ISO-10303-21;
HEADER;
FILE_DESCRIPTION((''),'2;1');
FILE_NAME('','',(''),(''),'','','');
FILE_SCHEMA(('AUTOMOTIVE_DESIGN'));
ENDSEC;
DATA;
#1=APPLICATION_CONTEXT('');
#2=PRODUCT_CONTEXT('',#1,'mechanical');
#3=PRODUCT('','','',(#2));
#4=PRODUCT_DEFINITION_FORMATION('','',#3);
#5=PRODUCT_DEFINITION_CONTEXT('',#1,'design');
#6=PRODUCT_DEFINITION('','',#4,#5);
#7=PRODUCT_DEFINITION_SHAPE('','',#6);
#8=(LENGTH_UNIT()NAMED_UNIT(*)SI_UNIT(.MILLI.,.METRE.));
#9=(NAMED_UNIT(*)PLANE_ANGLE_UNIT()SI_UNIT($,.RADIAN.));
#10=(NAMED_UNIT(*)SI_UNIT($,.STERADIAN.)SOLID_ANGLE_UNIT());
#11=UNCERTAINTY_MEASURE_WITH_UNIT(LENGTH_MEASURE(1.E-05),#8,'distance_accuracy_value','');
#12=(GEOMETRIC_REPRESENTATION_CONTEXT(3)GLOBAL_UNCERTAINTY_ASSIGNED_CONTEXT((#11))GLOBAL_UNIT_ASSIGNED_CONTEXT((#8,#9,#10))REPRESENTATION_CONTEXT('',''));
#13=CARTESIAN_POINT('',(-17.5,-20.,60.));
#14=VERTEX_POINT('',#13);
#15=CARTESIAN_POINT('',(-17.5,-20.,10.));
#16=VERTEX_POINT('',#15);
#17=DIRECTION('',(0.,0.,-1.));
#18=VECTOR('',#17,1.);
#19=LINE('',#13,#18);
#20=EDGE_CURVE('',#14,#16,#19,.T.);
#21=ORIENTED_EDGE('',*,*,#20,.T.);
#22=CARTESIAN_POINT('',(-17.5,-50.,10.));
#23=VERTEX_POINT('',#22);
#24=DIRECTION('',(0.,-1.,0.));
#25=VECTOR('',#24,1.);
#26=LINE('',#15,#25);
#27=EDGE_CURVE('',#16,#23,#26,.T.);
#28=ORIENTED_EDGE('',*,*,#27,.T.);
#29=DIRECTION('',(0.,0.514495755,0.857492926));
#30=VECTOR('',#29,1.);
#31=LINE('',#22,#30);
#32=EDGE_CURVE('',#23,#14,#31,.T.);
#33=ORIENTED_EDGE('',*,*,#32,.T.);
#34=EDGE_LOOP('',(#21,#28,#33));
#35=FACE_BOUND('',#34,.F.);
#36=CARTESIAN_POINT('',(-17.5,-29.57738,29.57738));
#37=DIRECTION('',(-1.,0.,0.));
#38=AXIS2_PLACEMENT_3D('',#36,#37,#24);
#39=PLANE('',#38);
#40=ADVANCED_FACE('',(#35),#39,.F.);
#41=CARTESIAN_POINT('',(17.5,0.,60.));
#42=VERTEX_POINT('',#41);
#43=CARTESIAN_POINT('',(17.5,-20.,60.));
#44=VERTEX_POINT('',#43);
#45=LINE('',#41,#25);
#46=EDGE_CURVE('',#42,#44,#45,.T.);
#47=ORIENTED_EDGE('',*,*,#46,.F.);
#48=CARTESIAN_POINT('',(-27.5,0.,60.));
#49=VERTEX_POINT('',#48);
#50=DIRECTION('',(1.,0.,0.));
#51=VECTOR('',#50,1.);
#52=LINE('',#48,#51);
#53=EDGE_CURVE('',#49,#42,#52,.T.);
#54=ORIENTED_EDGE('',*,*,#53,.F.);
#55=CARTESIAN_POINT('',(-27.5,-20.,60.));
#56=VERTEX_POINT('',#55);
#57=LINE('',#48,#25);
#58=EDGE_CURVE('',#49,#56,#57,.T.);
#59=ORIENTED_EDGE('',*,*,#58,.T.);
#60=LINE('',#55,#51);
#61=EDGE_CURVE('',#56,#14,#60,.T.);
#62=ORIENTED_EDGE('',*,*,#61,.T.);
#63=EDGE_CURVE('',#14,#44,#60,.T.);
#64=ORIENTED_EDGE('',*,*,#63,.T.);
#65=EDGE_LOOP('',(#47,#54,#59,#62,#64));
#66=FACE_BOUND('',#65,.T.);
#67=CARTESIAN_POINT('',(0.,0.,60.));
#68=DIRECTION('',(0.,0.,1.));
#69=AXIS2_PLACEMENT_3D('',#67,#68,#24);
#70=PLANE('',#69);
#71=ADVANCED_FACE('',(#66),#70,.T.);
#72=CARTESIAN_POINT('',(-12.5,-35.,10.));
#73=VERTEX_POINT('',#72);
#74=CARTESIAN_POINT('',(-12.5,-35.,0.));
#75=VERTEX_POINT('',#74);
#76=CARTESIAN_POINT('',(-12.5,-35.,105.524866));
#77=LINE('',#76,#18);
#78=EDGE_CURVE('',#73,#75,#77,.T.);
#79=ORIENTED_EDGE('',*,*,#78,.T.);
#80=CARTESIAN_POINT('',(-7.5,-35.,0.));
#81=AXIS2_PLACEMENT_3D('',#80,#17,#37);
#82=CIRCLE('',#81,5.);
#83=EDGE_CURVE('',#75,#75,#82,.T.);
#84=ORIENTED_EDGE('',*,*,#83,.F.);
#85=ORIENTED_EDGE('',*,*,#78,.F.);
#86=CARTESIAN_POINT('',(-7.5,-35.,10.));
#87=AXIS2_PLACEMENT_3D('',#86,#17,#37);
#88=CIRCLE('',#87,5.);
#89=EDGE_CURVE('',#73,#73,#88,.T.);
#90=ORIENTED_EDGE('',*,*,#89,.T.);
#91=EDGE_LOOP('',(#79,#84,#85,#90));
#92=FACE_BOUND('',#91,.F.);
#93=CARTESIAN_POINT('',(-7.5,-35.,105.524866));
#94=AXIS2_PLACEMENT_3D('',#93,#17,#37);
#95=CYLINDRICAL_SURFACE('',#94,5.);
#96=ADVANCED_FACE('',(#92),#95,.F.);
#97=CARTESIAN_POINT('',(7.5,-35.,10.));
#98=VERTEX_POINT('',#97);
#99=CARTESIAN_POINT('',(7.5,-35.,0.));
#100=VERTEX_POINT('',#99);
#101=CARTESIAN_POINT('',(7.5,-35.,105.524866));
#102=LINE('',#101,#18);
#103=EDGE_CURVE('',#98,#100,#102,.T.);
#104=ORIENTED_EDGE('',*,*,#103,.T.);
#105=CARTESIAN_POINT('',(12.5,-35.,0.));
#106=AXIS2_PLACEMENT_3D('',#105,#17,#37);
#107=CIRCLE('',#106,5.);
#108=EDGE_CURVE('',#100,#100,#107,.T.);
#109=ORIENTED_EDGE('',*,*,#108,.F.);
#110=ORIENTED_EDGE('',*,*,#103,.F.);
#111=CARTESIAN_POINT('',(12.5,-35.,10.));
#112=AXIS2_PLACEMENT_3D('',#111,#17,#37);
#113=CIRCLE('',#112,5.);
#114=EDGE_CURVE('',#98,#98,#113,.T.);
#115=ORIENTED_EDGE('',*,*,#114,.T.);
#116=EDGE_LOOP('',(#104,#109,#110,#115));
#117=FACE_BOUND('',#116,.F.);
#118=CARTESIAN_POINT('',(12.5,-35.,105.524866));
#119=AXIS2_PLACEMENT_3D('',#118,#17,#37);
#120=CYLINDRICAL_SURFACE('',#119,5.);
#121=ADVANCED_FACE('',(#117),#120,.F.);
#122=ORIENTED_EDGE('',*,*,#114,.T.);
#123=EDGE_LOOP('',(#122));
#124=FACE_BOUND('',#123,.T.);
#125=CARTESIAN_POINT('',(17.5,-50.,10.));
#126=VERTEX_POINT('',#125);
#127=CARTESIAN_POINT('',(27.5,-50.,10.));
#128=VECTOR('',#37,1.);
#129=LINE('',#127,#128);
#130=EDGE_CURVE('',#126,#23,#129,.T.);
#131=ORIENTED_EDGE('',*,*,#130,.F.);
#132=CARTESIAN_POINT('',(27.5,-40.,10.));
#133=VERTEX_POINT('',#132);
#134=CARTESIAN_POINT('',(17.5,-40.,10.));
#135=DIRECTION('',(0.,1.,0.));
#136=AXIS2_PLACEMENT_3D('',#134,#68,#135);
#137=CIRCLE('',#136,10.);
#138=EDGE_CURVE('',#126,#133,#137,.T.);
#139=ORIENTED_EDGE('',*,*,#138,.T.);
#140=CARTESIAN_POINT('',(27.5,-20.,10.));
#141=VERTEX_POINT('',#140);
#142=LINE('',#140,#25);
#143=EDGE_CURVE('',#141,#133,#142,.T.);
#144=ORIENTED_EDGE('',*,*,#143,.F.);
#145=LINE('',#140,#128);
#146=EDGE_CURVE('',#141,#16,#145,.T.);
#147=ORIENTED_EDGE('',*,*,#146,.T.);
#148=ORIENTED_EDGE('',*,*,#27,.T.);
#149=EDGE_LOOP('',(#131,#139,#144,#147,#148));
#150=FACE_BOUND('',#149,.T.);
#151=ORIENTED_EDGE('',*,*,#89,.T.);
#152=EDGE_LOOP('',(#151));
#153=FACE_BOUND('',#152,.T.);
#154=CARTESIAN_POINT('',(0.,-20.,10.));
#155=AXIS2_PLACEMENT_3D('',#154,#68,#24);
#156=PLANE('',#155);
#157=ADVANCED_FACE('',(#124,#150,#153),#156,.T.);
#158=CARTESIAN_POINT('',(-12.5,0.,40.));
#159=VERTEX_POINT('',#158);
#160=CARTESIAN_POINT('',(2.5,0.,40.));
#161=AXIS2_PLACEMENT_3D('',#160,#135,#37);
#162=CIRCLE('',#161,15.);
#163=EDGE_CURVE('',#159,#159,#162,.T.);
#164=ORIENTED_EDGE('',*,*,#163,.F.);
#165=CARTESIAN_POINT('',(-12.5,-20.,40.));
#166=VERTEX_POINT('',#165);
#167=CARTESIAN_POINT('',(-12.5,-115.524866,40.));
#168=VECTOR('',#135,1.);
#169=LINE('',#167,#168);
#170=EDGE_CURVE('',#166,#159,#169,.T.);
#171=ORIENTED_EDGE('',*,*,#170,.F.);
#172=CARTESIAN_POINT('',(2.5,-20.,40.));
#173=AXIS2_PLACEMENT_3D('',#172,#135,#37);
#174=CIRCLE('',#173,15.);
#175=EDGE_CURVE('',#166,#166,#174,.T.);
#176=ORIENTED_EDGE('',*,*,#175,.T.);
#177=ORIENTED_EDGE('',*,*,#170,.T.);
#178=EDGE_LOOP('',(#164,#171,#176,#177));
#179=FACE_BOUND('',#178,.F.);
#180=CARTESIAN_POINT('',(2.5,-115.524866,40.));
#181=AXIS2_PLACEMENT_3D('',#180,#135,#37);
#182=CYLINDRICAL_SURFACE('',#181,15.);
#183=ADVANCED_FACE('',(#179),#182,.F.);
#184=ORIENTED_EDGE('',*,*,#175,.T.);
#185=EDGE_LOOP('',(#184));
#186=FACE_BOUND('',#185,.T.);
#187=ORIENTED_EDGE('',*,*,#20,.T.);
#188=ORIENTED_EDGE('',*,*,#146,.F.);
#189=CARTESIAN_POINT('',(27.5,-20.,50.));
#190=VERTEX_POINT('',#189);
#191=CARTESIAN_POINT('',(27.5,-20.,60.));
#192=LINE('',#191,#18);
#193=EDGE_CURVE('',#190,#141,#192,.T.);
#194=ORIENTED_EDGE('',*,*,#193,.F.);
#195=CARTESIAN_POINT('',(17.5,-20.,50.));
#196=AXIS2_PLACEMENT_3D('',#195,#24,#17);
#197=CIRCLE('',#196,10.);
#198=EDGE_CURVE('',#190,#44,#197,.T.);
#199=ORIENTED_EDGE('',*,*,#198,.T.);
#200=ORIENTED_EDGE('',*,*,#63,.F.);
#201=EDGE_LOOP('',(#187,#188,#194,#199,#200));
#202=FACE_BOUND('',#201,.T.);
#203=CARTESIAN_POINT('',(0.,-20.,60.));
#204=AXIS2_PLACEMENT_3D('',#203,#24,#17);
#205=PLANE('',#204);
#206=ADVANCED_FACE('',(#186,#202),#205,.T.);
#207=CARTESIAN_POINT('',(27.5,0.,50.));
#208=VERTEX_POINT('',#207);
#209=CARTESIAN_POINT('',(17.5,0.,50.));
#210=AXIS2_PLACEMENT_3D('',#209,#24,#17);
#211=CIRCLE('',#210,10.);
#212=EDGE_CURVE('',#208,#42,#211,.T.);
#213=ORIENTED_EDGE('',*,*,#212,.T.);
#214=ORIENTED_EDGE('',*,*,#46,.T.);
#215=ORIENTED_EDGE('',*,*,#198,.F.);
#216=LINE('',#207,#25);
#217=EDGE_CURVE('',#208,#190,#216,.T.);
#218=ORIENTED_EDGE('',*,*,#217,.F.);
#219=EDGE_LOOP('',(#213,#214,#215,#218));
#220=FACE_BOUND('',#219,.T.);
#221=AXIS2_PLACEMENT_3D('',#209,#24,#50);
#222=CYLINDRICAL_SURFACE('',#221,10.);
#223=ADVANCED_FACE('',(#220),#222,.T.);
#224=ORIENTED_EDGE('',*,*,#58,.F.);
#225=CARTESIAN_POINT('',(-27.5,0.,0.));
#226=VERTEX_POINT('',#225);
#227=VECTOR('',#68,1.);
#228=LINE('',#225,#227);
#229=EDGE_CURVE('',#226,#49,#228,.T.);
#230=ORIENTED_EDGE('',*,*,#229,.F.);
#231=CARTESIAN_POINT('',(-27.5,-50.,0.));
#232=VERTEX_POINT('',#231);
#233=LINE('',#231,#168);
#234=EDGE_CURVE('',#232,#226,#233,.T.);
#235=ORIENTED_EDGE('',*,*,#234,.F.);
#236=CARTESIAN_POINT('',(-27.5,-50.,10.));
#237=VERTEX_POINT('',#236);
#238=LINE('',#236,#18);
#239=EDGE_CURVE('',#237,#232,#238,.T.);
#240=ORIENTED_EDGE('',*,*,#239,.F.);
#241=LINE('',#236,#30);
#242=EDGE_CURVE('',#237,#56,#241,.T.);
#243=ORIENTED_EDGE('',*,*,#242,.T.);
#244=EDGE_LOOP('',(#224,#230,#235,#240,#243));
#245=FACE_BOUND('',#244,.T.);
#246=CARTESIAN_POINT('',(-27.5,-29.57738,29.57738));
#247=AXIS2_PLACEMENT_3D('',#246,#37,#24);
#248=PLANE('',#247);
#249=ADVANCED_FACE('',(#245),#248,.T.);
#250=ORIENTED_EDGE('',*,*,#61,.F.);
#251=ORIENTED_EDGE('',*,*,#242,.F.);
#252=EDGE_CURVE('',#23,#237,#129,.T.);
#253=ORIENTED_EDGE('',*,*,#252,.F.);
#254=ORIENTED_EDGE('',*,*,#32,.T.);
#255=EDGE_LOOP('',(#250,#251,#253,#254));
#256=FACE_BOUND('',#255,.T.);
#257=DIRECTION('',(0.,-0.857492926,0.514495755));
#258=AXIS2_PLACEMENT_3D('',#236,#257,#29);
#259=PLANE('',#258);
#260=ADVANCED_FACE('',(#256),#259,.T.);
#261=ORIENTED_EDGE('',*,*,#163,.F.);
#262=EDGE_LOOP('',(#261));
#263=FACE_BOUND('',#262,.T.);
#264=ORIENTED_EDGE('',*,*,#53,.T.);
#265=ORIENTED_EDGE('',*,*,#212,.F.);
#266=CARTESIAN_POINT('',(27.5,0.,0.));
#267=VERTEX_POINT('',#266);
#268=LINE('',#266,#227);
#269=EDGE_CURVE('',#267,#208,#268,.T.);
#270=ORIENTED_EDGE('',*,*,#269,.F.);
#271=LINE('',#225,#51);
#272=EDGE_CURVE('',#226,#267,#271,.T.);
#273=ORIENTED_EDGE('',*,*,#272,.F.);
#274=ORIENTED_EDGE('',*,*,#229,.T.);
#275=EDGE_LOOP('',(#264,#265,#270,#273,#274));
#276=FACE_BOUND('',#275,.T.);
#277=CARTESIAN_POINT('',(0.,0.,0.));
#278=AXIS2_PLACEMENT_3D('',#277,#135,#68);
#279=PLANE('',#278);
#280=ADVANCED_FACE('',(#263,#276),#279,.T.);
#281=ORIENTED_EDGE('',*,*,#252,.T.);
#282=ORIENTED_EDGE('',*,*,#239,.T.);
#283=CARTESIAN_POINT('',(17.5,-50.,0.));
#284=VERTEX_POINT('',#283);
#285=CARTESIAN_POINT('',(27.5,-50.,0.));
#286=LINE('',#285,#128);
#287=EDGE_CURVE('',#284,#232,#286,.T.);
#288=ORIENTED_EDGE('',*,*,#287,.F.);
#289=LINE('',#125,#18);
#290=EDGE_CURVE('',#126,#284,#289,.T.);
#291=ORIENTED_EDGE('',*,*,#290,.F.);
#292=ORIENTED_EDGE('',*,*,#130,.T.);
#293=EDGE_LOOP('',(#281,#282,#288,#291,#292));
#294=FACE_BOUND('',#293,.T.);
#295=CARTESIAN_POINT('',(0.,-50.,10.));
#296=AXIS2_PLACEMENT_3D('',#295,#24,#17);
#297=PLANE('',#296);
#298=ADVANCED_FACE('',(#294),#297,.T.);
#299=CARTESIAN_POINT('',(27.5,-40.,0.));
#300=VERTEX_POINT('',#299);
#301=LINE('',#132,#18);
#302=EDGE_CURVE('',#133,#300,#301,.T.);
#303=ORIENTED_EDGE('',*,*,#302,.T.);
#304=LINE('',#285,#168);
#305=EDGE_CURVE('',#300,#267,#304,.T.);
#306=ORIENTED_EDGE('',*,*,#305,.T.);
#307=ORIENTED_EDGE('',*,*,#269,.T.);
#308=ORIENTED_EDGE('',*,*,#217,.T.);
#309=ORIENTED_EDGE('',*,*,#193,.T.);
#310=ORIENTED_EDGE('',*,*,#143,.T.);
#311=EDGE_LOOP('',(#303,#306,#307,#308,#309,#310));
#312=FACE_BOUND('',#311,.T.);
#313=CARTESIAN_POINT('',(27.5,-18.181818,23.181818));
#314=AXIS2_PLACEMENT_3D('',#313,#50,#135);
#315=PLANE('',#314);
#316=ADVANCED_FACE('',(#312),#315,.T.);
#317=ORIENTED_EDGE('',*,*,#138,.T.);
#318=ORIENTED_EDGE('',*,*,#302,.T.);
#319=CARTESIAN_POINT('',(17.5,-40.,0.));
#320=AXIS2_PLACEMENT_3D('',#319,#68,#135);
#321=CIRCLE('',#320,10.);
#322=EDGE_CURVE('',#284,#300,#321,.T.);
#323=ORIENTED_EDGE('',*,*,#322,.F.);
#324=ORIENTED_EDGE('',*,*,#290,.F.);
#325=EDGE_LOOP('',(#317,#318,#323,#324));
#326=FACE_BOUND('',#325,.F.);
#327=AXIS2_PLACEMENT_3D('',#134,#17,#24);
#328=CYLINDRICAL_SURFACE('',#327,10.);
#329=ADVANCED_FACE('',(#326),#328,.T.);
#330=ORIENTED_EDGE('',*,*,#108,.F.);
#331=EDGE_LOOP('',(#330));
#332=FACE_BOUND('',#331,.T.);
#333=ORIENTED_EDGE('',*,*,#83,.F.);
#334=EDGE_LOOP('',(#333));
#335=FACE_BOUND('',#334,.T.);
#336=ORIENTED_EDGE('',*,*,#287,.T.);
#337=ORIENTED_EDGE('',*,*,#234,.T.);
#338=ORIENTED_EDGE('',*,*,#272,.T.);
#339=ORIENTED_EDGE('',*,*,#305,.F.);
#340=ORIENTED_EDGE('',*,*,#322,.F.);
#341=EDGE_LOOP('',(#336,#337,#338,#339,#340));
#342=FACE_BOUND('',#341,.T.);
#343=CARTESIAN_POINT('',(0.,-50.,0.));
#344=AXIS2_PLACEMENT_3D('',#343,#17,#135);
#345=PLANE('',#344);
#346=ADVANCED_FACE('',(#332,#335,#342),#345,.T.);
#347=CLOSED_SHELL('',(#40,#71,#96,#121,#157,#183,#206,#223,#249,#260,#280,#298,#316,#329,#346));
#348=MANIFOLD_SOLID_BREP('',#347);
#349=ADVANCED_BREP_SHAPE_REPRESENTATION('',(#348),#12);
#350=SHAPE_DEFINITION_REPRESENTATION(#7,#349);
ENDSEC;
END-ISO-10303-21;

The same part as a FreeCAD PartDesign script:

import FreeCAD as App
import Part
import Sketcher
from FreeCAD import Vector


def edges_at(feature, points):
    """Names of the edges that pass closest to the given points."""
    edges = feature.Shape.Edges
    near = lambda p: min(range(len(edges)), key=lambda i: edges[i].distToShape(Part.Vertex(*p))[0])
    return sorted({f"Edge{near(p) + 1}" for p in points})


def add_polygon(sketch, points):
    """Adds a closed chain of lines whose ends are joined by coincident constraints."""
    first, n = sketch.GeometryCount, len(points)
    for a, b in zip(points, points[1:] + points[:1]):
        sketch.addGeometry(Part.LineSegment(App.Vector(*a, 0), App.Vector(*b, 0)), False)
    for i in range(n):
        sketch.addConstraint(Sketcher.Constraint("Coincident", first + i, 2, first + (i + 1) % n, 1))

doc = App.newDocument("Part")
body = doc.addObject("PartDesign::Body", "Body")

# Sketch on YZ plane
sketch1 = doc.addObject("Sketcher::SketchObject", "Sketch")
body.addObject(sketch1)
sketch1.AttachmentSupport = (doc.YZ_Plane, [""])
sketch1.MapMode = "FlatFace"
add_polygon(sketch1, [(-50, 0), (0, 0), (0, 60), (-20, 60), (-20, 10), (-50, 10)])  # lines 0-5
sketch1.addConstraint([
    Sketcher.Constraint("Horizontal", 0),
    Sketcher.Constraint("Vertical", 1),
    Sketcher.Constraint("Horizontal", 2),
    Sketcher.Constraint("Vertical", 3),
    Sketcher.Constraint("Horizontal", 4),
    Sketcher.Constraint("Vertical", 5),
    Sketcher.Constraint("Coincident", 0, 2, -1, 1),
    Sketcher.Constraint("Equal", 0, 3),
    Sketcher.Constraint("DistanceX", 0, 1, 0, 2, 50.0),
    Sketcher.Constraint("DistanceX", 2, 2, 2, 1, 20.0),
    Sketcher.Constraint("DistanceY", 1, 1, 1, 2, 60.0),
])
pad1 = doc.addObject("PartDesign::Pad", "Pad")
body.addObject(pad1)
pad1.Profile = sketch1
pad1.Length = 55
pad1.Midplane = True

# Sketch on YZ plane
sketch2 = doc.addObject("Sketcher::SketchObject", "Sketch001")
body.addObject(sketch2)
sketch2.AttachmentSupport = (doc.YZ_Plane, [""])
sketch2.MapMode = "FlatFace"
sketch2.AttachmentOffset = App.Placement(Vector(0, 0, -27.5), App.Rotation())
add_polygon(sketch2, [(-50, 10), (-20, 60), (-20, 10)])  # lines 0-2
sketch2.addConstraint([
    Sketcher.Constraint("Vertical", 1),
    Sketcher.Constraint("Horizontal", 2),
    Sketcher.Constraint("DistanceX", 2, 2, 2, 1, 30.0),
    Sketcher.Constraint("DistanceY", 1, 2, 1, 1, 50.0),
    Sketcher.Constraint("DistanceX", 0, 2, -1, 1, 20.0),
    Sketcher.Constraint("DistanceY", -1, 1, 0, 2, 60.0),
])
pad2 = doc.addObject("PartDesign::Pad", "Pad001")
body.addObject(pad2)
pad2.Profile = sketch2
pad2.Length = 10

# Sketch on XZ plane
sketch3 = doc.addObject("Sketcher::SketchObject", "Sketch002")
body.addObject(sketch3)
sketch3.AttachmentSupport = (doc.XZ_Plane, [""])
sketch3.MapMode = "FlatFace"
sketch3.AttachmentOffset = App.Placement(Vector(0, 0, 20), App.Rotation())
sketch3.addGeometry(Part.Circle(Vector(2, 40, 0), Vector(0, 0, 1), 15), False)
sketch3.addConstraint([
    Sketcher.Constraint("Diameter", 0, 30.0),
    Sketcher.Constraint("DistanceY", -1, 1, 0, 3, 40.0),
    Sketcher.Constraint("DistanceX", -1, 1, 0, 3, 2.5),
])
doc.recompute()
hole = doc.addObject("PartDesign::Hole", "Hole")
body.addObject(hole)
hole.Profile = sketch3
hole.ThreadType = "None"
hole.Diameter = 30
hole.DepthType = "ThroughAll"

# Sketch on XY plane
sketch4 = doc.addObject("Sketcher::SketchObject", "Sketch003")
body.addObject(sketch4)
sketch4.AttachmentSupport = (doc.XY_Plane, [""])
sketch4.MapMode = "FlatFace"
sketch4.AttachmentOffset = App.Placement(Vector(0, 0, 10), App.Rotation())
sketch4.addGeometry([
    Part.Circle(Vector(-8, -35, 0), Vector(0, 0, 1), 5),
    Part.Circle(Vector(12, -35, 0), Vector(0, 0, 1), 5),
], False)
sketch4.addConstraint([
    Sketcher.Constraint("Equal", 0, 1),
    Sketcher.Constraint("Horizontal", 0, 3, 1, 3),
    Sketcher.Constraint("Diameter", 0, 10.0),
    Sketcher.Constraint("DistanceY", 0, 3, -1, 1, 35.0),
    Sketcher.Constraint("DistanceX", 0, 3, 1, 3, 20.0),
    Sketcher.Constraint("DistanceX", 0, 3, -1, 1, 7.5),
])
doc.recompute()
hole2 = doc.addObject("PartDesign::Hole", "Hole001")
body.addObject(hole2)
hole2.Profile = sketch4
hole2.ThreadType = "None"
hole2.Diameter = 10
hole2.DepthType = "ThroughAll"
doc.recompute()

fillet = doc.addObject("PartDesign::Fillet", "Fillet")
body.addObject(fillet)
fillet.Base = (hole2, edges_at(hole2, [(27.5, -50, 5)]))
fillet.Radius = 10
doc.recompute()

fillet2 = doc.addObject("PartDesign::Fillet", "Fillet001")
body.addObject(fillet2)
fillet2.Base = (fillet, edges_at(fillet, [(27.5, -10, 60)]))
fillet2.Radius = 10

doc.recompute()
